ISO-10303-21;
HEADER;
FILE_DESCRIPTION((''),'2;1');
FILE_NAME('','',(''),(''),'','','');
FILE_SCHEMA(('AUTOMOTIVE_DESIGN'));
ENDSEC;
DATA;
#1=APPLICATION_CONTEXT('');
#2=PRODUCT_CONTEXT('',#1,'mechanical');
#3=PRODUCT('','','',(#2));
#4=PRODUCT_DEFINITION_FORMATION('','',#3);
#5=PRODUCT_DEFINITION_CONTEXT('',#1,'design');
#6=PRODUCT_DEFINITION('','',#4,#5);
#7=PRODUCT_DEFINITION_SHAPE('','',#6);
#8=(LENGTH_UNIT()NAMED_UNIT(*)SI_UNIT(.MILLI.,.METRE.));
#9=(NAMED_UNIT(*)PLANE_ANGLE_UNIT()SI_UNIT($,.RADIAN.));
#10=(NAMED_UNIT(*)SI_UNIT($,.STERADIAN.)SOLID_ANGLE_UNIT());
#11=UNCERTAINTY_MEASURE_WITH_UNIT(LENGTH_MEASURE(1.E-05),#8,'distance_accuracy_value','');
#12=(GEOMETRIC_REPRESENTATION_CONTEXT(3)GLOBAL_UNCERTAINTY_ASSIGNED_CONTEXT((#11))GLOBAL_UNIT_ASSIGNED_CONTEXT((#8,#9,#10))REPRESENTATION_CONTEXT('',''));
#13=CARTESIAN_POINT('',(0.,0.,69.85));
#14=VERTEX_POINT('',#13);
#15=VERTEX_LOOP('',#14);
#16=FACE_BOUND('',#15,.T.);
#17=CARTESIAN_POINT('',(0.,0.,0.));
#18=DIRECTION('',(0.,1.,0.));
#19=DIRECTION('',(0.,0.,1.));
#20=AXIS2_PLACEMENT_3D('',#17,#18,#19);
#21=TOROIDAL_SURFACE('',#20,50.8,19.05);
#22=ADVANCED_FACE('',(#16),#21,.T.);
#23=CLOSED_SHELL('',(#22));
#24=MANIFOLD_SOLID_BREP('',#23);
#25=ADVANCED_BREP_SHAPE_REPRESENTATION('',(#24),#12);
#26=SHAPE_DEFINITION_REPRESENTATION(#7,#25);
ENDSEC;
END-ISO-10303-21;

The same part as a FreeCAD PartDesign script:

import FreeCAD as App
import Part
import Sketcher

V = App.Vector
Q = App.Units.Quantity

doc = App.newDocument("Part")
params = doc.addObject("Spreadsheet::Sheet", "Params")
for row, (alias, value) in enumerate([
    ("sketch1_diameter", "1.5 in"),
    ("revolution_angle", "360 deg"),
], start=1):
    params.set(f"A{row}", alias)
    params.set(f"B{row}", "=" + value)
    params.setAlias(f"B{row}", alias)

body = doc.addObject("PartDesign::Body", "Body")

# Sketch on XY plane
sketch1 = doc.addObject("Sketcher::SketchObject", "Sketch")
body.addObject(sketch1)
sketch1.AttachmentSupport = (doc.XY_Plane, [""])
sketch1.MapMode = "FlatFace"
sketch1.addGeometry(Part.Circle(V(-51, 0, 0), V(0, 0, 1), 19), False)
sketch1.addConstraint([
    Sketcher.Constraint("PointOnObject", 0, 3, -1),
    Sketcher.Constraint("Diameter", 0, Q("1.5 in")),
    Sketcher.Constraint("DistanceX", 0, 3, -1, 1, Q("2 in")),
])
sketch1.setExpression("Constraints[1]", "Params.sketch1_diameter")
revolution = doc.addObject("PartDesign::Revolution", "Revolution")
body.addObject(revolution)
revolution.Profile = sketch1
revolution.ReferenceAxis = (sketch1, ["V_Axis"])
revolution.setExpression("Angle", "Params.revolution_angle")

doc.recompute()
